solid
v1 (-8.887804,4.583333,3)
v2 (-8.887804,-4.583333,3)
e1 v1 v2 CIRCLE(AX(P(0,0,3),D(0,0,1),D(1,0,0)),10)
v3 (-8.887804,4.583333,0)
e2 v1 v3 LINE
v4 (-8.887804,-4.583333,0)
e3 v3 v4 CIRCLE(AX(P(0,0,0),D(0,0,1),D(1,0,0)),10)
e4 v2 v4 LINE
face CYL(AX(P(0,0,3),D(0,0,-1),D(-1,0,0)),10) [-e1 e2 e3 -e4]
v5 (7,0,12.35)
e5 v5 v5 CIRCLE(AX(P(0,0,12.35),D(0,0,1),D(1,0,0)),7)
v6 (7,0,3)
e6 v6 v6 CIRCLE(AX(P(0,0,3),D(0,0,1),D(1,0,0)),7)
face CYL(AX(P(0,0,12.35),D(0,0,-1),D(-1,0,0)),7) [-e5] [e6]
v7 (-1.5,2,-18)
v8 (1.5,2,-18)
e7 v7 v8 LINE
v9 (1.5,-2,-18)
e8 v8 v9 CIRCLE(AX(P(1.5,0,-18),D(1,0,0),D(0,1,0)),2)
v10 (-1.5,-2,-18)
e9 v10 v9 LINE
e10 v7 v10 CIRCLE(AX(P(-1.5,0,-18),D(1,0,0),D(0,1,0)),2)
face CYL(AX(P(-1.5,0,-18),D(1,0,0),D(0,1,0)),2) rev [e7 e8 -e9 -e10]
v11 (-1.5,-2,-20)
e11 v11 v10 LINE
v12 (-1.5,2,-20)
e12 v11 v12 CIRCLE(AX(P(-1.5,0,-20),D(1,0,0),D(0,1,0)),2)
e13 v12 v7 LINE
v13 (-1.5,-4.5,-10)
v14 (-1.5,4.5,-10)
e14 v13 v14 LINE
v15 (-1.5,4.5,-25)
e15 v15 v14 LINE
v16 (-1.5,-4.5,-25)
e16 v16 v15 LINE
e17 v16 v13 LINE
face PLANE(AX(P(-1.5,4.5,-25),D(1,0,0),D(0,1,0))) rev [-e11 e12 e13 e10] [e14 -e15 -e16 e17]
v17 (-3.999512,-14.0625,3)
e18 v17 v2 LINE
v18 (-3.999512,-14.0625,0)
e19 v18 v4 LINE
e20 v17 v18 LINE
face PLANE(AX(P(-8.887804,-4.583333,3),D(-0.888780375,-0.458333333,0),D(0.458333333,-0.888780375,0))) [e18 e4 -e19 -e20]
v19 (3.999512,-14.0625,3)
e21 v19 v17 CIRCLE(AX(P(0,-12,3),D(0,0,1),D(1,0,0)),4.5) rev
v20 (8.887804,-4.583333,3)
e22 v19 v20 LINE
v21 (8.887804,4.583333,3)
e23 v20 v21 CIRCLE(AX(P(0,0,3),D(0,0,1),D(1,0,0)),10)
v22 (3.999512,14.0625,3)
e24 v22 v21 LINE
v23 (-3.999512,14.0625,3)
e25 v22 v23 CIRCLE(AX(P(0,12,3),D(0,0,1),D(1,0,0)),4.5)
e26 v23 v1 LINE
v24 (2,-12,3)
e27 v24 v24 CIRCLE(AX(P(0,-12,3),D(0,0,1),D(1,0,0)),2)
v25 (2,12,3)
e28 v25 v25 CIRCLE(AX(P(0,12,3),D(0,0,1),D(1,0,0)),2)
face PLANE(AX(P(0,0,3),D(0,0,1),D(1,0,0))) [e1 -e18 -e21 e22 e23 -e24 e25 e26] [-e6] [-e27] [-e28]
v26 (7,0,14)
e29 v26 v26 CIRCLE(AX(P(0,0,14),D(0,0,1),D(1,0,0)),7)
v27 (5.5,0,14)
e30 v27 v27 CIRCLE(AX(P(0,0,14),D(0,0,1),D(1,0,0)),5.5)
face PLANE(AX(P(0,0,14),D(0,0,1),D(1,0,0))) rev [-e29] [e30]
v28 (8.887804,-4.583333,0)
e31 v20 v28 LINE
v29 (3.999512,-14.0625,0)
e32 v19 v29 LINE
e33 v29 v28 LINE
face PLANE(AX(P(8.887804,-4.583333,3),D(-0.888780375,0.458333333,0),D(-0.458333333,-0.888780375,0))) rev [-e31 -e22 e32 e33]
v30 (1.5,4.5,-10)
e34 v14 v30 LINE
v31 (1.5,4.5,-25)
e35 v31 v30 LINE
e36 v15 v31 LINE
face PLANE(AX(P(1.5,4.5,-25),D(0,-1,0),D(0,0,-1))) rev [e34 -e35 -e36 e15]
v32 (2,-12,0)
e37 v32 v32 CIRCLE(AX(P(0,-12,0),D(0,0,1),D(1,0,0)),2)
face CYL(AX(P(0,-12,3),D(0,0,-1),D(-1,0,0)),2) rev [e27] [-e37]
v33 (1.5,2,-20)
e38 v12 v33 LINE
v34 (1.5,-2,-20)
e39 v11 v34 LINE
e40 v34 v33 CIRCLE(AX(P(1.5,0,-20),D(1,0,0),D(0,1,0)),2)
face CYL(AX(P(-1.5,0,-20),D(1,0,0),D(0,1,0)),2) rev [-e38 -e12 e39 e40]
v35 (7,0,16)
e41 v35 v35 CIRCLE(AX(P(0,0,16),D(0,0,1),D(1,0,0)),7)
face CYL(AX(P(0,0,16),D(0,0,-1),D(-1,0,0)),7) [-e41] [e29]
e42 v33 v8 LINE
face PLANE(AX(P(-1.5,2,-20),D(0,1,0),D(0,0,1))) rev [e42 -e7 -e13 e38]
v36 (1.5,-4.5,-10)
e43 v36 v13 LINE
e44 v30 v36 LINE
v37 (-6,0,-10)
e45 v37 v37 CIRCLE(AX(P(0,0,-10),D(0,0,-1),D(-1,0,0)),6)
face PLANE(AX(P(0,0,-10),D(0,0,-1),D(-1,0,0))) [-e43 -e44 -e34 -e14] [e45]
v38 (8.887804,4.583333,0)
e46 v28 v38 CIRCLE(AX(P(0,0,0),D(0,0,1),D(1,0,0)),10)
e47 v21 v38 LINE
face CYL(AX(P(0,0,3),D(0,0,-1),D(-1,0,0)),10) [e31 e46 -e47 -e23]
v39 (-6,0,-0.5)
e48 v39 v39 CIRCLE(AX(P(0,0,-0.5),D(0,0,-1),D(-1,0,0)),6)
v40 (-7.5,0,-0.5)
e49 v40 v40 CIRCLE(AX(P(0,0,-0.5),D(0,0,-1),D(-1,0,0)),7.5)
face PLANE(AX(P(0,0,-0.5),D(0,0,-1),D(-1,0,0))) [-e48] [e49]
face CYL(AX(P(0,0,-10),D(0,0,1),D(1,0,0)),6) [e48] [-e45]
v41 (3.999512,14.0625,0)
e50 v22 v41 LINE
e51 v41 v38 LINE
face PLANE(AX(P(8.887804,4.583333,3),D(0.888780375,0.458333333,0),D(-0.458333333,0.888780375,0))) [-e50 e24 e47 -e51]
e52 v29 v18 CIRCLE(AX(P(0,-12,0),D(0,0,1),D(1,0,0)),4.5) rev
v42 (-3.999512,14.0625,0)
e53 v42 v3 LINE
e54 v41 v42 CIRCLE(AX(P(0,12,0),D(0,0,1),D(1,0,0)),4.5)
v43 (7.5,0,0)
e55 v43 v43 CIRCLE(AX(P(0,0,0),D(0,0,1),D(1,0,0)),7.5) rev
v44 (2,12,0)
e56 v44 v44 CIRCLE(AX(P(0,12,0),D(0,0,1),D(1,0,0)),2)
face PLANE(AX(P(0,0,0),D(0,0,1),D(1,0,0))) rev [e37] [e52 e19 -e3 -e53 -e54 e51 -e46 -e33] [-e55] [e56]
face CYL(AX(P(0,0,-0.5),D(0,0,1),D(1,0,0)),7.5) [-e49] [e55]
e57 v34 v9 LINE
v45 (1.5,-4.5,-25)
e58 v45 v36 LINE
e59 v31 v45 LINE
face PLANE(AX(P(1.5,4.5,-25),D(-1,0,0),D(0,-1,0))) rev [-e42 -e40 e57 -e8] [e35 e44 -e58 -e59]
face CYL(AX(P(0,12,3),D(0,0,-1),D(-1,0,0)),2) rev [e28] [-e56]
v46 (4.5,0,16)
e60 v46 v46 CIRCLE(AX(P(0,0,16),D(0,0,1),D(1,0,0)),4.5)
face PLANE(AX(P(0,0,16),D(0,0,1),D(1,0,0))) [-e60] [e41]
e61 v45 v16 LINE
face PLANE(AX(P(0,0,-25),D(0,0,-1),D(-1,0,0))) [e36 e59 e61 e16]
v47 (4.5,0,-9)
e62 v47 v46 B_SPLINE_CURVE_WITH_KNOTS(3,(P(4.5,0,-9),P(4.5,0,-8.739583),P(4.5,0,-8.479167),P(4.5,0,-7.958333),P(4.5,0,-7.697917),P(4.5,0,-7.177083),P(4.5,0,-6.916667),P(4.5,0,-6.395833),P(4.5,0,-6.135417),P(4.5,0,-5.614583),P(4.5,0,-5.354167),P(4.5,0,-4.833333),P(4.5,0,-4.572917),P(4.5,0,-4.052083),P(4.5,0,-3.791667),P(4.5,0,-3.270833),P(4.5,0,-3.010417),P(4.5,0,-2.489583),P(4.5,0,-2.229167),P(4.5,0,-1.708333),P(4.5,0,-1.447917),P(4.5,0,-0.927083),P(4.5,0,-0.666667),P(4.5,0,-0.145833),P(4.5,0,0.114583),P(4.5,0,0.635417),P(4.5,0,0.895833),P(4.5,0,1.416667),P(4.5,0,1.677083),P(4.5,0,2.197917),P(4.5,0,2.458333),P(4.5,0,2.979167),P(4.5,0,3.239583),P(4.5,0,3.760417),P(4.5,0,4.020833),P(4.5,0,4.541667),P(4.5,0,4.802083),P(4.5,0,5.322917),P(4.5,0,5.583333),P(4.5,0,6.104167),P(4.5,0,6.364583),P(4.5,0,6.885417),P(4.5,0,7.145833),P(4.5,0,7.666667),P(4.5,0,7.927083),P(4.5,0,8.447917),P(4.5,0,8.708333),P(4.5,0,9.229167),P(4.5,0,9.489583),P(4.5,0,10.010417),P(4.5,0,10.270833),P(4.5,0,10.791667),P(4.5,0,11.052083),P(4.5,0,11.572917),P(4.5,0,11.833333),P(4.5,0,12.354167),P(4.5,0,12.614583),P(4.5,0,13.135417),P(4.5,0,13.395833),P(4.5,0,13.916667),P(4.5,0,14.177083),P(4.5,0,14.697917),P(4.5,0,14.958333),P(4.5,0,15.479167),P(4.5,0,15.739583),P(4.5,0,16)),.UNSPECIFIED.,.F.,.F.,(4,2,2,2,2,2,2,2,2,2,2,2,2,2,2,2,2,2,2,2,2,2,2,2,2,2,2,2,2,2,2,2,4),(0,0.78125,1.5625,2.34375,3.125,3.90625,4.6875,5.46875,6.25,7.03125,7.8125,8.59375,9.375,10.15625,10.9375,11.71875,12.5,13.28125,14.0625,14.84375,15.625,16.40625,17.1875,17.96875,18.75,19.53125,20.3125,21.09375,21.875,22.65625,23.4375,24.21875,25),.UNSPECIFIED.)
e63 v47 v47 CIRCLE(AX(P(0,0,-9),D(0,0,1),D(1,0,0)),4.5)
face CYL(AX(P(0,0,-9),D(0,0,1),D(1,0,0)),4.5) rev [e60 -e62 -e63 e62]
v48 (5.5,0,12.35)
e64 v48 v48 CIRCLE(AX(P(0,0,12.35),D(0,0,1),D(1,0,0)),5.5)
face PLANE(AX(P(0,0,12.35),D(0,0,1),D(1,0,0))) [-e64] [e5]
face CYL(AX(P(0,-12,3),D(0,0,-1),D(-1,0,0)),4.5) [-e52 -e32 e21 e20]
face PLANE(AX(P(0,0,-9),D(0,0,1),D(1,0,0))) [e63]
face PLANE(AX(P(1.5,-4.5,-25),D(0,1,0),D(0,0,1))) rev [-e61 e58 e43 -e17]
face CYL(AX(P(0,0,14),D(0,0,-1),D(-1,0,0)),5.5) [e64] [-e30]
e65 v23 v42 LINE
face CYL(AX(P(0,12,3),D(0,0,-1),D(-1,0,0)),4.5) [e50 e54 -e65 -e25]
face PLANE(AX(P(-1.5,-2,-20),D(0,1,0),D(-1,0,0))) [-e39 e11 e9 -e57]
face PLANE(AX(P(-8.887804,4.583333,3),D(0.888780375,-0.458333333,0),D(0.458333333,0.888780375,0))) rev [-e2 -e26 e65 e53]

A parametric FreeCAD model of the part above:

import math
import FreeCAD as App
import Part
import Sketcher
Q = App.Units.Quantity

doc = App.newDocument("Part")
body = doc.addObject("PartDesign::Body", "Body")

# Sketch on XY plane
sketch1 = body.newObject("Sketcher::SketchObject", "Sketch")
sketch1.AttachmentSupport = (doc.getObject("XY_Plane"), [""])
sketch1.MapMode = "FlatFace"
sketch1.addGeometry([
    Part.ArcOfCircle(Part.Circle(App.Vector(0, -12, 0), App.Vector(0, 0, 1), 4.5), math.radians(-153), math.radians(-27)),  # 0
    Part.LineSegment(App.Vector(4, -14.1, 0), App.Vector(8.9, -4.6, 0)),  # 1
    Part.ArcOfCircle(Part.Circle(App.Vector(0, 0, 0), App.Vector(0, 0, 1), 10), math.radians(-27), math.radians(27)),  # 2
    Part.LineSegment(App.Vector(8.9, 4.6, 0), App.Vector(4, 14.1, 0)),  # 3
    Part.ArcOfCircle(Part.Circle(App.Vector(0, 12, 0), App.Vector(0, 0, 1), 4.5), math.radians(27), math.radians(153)),  # 4
    Part.LineSegment(App.Vector(-4, 14.1, 0), App.Vector(-8.9, 4.6, 0)),  # 5
    Part.ArcOfCircle(Part.Circle(App.Vector(0, 0, 0), App.Vector(0, 0, 1), 10), math.radians(153), math.radians(207)),  # 6
    Part.LineSegment(App.Vector(-8.9, -4.6, 0), App.Vector(-4, -14.1, 0)),  # 7
    Part.Circle(App.Vector(0, -12, 0), App.Vector(0, 0, 1), 2),  # 8
    Part.Circle(App.Vector(0, 12, 0), App.Vector(0, 0, 1), 2),  # 9
], False)
sketch1.addConstraint([
    Sketcher.Constraint("Tangent", 0, 2, 1, 1),
    Sketcher.Constraint("Tangent", 1, 2, 2, 1),
    Sketcher.Constraint("Tangent", 2, 2, 3, 1),
    Sketcher.Constraint("Tangent", 3, 2, 4, 1),
    Sketcher.Constraint("Tangent", 4, 2, 5, 1),
    Sketcher.Constraint("Tangent", 5, 2, 6, 1),
    Sketcher.Constraint("Tangent", 6, 2, 7, 1),
    Sketcher.Constraint("Tangent", 7, 2, 0, 1),
    Sketcher.Constraint("Coincident", 2, 3, -1, 1),
    Sketcher.Constraint("Coincident", 6, 3, -1, 1),
    Sketcher.Constraint("Coincident", 8, 3, 0, 3),
    Sketcher.Constraint("Coincident", 9, 3, 4, 3),
    Sketcher.Constraint("Equal", 0, 4),
    Sketcher.Constraint("Equal", 2, 6),
    Sketcher.Constraint("Equal", 8, 9),
    Sketcher.Constraint("Symmetric", 0, 3, 4, 3, -1, 1),
    Sketcher.Constraint("PointOnObject", 0, 3, -2),
    Sketcher.Constraint("Diameter", 8, Q("4 mm")),
    Sketcher.Constraint("Radius", 2, Q("10 mm")),
    Sketcher.Constraint("Radius", 0, Q("4.5 mm")),
    Sketcher.Constraint("DistanceY", 0, 3, -1, 1, Q("12 mm")),
])
pad1 = body.newObject("PartDesign::Pad", "Pad")
pad1.Profile = sketch1
pad1.Length = 3

# Sketch on XY plane
sketch2 = body.newObject("Sketcher::SketchObject", "Sketch001")
sketch2.AttachmentSupport = (doc.getObject("XY_Plane"), [""])
sketch2.MapMode = "FlatFace"
sketch2.AttachmentOffset = App.Placement(App.Vector(0, 0, 3), App.Rotation())
sketch2.addGeometry(Part.Circle(App.Vector(0, 0, 0), App.Vector(0, 0, 1), 7), False)
sketch2.addConstraint([
    Sketcher.Constraint("Coincident", 0, 3, -1, 1),
    Sketcher.Constraint("Diameter", 0, Q("14 mm")),
])
pad2 = body.newObject("PartDesign::Pad", "Pad001")
pad2.Profile = sketch2
pad2.Length = 9.35

# Sketch on XY plane
sketch3 = body.newObject("Sketcher::SketchObject", "Sketch002")
sketch3.AttachmentSupport = (doc.getObject("XY_Plane"), [""])
sketch3.MapMode = "FlatFace"
sketch3.addGeometry(Part.Circle(App.Vector(0, 0, 0), App.Vector(0, 0, 1), 8), False)
sketch3.addConstraint([
    Sketcher.Constraint("Coincident", 0, 3, -1, 1),
    Sketcher.Constraint("Diameter", 0, Q("15 mm")),
])
pad3 = body.newObject("PartDesign::Pad", "Pad002")
pad3.Profile = sketch3
pad3.Length = 0.5
pad3.Reversed = True

# Sketch on XY plane
sketch4 = body.newObject("Sketcher::SketchObject", "Sketch003")
sketch4.AttachmentSupport = (doc.getObject("XY_Plane"), [""])
sketch4.MapMode = "FlatFace"
sketch4.AttachmentOffset = App.Placement(App.Vector(0, 0, -0.5), App.Rotation())
sketch4.addGeometry([
    Part.LineSegment(App.Vector(1.5, 4.5, 0), App.Vector(1.5, -4.5, 0)),
    Part.LineSegment(App.Vector(1.5, -4.5, 0), App.Vector(-1.5, -4.5, 0)),
    Part.LineSegment(App.Vector(-1.5, -4.5, 0), App.Vector(-1.5, 4.5, 0)),
    Part.LineSegment(App.Vector(-1.5, 4.5, 0), App.Vector(1.5, 4.5, 0)),
], False)
sketch4.addConstraint([
    Sketcher.Constraint("Coincident", 0, 2, 1, 1),
    Sketcher.Constraint("Coincident", 1, 2, 2, 1),
    Sketcher.Constraint("Coincident", 2, 2, 3, 1),
    Sketcher.Constraint("Coincident", 3, 2, 0, 1),
    Sketcher.Constraint("Vertical", 0),
    Sketcher.Constraint("Horizontal", 1),
    Sketcher.Constraint("Vertical", 2),
    Sketcher.Constraint("Horizontal", 3),
    Sketcher.Constraint("Symmetric", 0, 2, 2, 2, -1, 1),
    Sketcher.Constraint("DistanceX", 1, 2, 1, 1, Q("3 mm")),
    Sketcher.Constraint("DistanceY", 0, 2, 0, 1, Q("9 mm")),
])
pad4 = body.newObject("PartDesign::Pad", "Pad003")
pad4.Profile = sketch4
pad4.Length = 24.5
pad4.Reversed = True

# Sketch on XY plane
sketch5 = body.newObject("Sketcher::SketchObject", "Sketch004")
sketch5.AttachmentSupport = (doc.getObject("XY_Plane"), [""])
sketch5.MapMode = "FlatFace"
sketch5.AttachmentOffset = App.Placement(App.Vector(0, 0, -0.5), App.Rotation())
sketch5.addGeometry(Part.Circle(App.Vector(0, 0, 0), App.Vector(0, 0, 1), 6), False)
sketch5.addConstraint([
    Sketcher.Constraint("Coincident", 0, 3, -1, 1),
    Sketcher.Constraint("Diameter", 0, Q("12 mm")),
])
pad5 = body.newObject("PartDesign::Pad", "Pad004")
pad5.Profile = sketch5
pad5.Length = 9.5
pad5.Reversed = True

# Sketch on XY plane
sketch6 = body.newObject("Sketcher::SketchObject", "Sketch005")
sketch6.AttachmentSupport = (doc.getObject("XY_Plane"), [""])
sketch6.MapMode = "FlatFace"
sketch6.AttachmentOffset = App.Placement(App.Vector(0, 0, 12.35), App.Rotation())
sketch6.addGeometry(Part.Circle(App.Vector(0, 0, 0), App.Vector(0, 0, 1), 6), False)
sketch6.addConstraint([
    Sketcher.Constraint("Coincident", 0, 3, -1, 1),
    Sketcher.Constraint("Diameter", 0, Q("11 mm")),
])
pad6 = body.newObject("PartDesign::Pad", "Pad005")
pad6.Profile = sketch6
pad6.Length = 1.65

# Sketch on XY plane
sketch7 = body.newObject("Sketcher::SketchObject", "Sketch006")
sketch7.AttachmentSupport = (doc.getObject("XY_Plane"), [""])
sketch7.MapMode = "FlatFace"
sketch7.AttachmentOffset = App.Placement(App.Vector(0, 0, 14), App.Rotation())
sketch7.addGeometry(Part.Circle(App.Vector(0, 0, 0), App.Vector(0, 0, 1), 7), False)
sketch7.addConstraint([
    Sketcher.Constraint("Coincident", 0, 3, -1, 1),
    Sketcher.Constraint("Diameter", 0, Q("14 mm")),
])
pad7 = body.newObject("PartDesign::Pad", "Pad006")
pad7.Profile = sketch7
pad7.Length = 2

# Sketch on XY plane
sketch8 = body.newObject("Sketcher::SketchObject", "Sketch007")
sketch8.AttachmentSupport = (doc.getObject("XY_Plane"), [""])
sketch8.MapMode = "FlatFace"
sketch8.AttachmentOffset = App.Placement(App.Vector(0, 0, 16), App.Rotation())
sketch8.addGeometry(Part.Circle(App.Vector(0, 0, 0), App.Vector(0, 0, 1), 4.5), False)
sketch8.addConstraint([
    Sketcher.Constraint("Coincident", 0, 3, -1, 1),
    Sketcher.Constraint("Diameter", 0, Q("9 mm")),
])
pocket1 = body.newObject("PartDesign::Pocket", "Pocket")
pocket1.Profile = sketch8
pocket1.Length = 25

# Sketch on YZ plane
sketch9 = body.newObject("Sketcher::SketchObject", "Sketch008")
sketch9.AttachmentSupport = (doc.getObject("YZ_Plane"), [""])
sketch9.MapMode = "FlatFace"
sketch9.AttachmentOffset = App.Placement(App.Vector(0, 0, 1.5), App.Rotation())
sketch9.addGeometry([
    Part.LineSegment(App.Vector(-2, -18, 0), App.Vector(-2, -20, 0)),
    Part.ArcOfCircle(Part.Circle(App.Vector(0, -20, 0), App.Vector(0, 0, 1), 2), math.radians(180), math.radians(360)),
    Part.LineSegment(App.Vector(2, -20, 0), App.Vector(2, -18, 0)),
    Part.ArcOfCircle(Part.Circle(App.Vector(0, -18, 0), App.Vector(0, 0, 1), 2), math.radians(0), math.radians(180)),
], False)
sketch9.addConstraint([
    Sketcher.Constraint("Tangent", 0, 2, 1, 1),
    Sketcher.Constraint("Tangent", 1, 2, 2, 1),
    Sketcher.Constraint("Tangent", 2, 2, 3, 1),
    Sketcher.Constraint("Tangent", 3, 2, 0, 1),
    Sketcher.Constraint("Vertical", 0),
    Sketcher.Constraint("Vertical", 2),
    Sketcher.Constraint("PointOnObject", 1, 3, -2),
    Sketcher.Constraint("Radius", 1, Q("2 mm")),
    Sketcher.Constraint("DistanceY", 0, 2, 0, 1, Q("2 mm")),
    Sketcher.Constraint("DistanceY", 1, 3, -1, 1, Q("20 mm")),
])
pocket2 = body.newObject("PartDesign::Pocket", "Pocket001")
pocket2.Profile = sketch9
pocket2.Length = 3

doc.recompute()
